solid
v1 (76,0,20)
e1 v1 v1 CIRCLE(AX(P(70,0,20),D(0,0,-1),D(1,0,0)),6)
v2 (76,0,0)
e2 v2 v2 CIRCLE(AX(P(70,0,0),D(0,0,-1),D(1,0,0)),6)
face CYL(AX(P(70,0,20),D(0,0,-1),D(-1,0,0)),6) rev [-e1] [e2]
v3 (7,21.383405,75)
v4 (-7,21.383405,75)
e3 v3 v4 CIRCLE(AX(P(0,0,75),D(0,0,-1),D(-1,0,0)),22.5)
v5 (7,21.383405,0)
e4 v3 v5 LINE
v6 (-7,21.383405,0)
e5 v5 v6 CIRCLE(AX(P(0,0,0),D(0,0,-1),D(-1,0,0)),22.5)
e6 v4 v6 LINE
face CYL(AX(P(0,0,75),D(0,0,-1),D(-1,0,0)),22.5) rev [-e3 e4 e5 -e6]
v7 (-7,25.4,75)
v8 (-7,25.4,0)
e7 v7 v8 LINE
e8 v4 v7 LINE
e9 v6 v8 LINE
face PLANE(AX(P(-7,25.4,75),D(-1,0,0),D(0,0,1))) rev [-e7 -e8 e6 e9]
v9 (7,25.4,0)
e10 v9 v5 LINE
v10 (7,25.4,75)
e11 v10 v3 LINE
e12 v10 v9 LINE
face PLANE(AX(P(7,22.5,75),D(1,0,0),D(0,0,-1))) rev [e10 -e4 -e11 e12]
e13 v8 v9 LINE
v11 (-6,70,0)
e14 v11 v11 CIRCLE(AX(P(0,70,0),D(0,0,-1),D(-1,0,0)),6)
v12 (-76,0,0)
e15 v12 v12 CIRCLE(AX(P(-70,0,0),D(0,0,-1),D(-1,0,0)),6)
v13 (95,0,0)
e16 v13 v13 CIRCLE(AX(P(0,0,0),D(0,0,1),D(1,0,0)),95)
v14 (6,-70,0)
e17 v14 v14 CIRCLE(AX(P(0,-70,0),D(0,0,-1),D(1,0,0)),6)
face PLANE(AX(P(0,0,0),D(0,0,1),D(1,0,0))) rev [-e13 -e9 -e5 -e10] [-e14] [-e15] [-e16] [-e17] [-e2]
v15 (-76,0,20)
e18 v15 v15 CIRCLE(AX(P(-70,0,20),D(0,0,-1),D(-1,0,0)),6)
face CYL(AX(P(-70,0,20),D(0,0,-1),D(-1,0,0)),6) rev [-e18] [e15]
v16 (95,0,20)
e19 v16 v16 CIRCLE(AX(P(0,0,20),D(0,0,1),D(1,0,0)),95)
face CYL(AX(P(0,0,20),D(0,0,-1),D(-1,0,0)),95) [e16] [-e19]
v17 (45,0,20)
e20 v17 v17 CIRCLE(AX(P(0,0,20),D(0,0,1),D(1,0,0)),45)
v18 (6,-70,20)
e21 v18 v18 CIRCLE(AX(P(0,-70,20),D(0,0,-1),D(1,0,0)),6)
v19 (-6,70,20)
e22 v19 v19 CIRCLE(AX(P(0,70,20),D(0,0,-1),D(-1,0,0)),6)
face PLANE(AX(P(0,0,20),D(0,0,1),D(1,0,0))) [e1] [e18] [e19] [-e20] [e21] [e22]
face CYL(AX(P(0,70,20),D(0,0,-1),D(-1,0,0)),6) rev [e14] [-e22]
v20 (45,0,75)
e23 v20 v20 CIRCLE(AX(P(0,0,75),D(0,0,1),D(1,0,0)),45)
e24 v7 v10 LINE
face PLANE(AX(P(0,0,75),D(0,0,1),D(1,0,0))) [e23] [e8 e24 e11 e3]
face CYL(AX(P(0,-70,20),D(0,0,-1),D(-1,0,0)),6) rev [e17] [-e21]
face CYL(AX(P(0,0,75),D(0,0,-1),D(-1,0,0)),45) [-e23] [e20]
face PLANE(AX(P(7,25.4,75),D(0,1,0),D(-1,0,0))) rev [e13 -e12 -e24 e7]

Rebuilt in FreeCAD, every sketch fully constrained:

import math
import FreeCAD as App
import Part
import Sketcher
from FreeCAD import Vector

doc = App.newDocument("Part")
params = doc.addObject("Spreadsheet::Sheet", "Params")
for row, (alias, value) in enumerate([
    ("sketch1_diameter", "190 mm"),
    ("pad1_length", "20 mm"),
    ("sketch2_diameter", "12 mm"),
    ("pocket1_length", "20 mm"),
    ("sketch3_diameter", "90 mm"),
    ("pad2_length", "55 mm"),
    ("sketch4_radius", "22.5 mm"),
    ("sketch4_width", "14 mm"),
    ("pocket2_length", "75 mm"),
], start=1):
    params.set(f"A{row}", alias)
    params.set(f"B{row}", "=" + value)
    params.setAlias(f"B{row}", alias)

body = doc.addObject("PartDesign::Body", "Body")

# Sketch on XY plane
sketch1 = body.newObject("Sketcher::SketchObject", "Sketch")
sketch1.AttachmentSupport = (doc.getObject("XY_Plane"), [""])
sketch1.MapMode = "FlatFace"
sketch1.addGeometry(Part.Circle(Vector(0, 0, 0), Vector(0, 0, 1), 95), False)
sketch1.addConstraint(Sketcher.Constraint("Coincident", 0, 3, -1, 1))
sketch1.addConstraint(Sketcher.Constraint("Diameter", 0, 190.0))
sketch1.setExpression("Constraints[1]", "Params.sketch1_diameter")
pad1 = body.newObject("PartDesign::Pad", "Pad")
pad1.Profile = sketch1
pad1.setExpression("Length", "Params.pad1_length")

# Sketch on XY plane
sketch2 = body.newObject("Sketcher::SketchObject", "Sketch001")
sketch2.AttachmentSupport = (doc.getObject("XY_Plane"), [""])
sketch2.MapMode = "FlatFace"
sketch2.addGeometry(Part.Circle(Vector(0, 70, 0), Vector(0, 0, 1), 6), False)
sketch2.addGeometry(Part.Circle(Vector(-70, 0, 0), Vector(0, 0, 1), 6), False)
sketch2.addGeometry(Part.Circle(Vector(0, -70, 0), Vector(0, 0, 1), 6), False)
sketch2.addGeometry(Part.Circle(Vector(70, 0, 0), Vector(0, 0, 1), 6), False)
sketch2.addConstraint(Sketcher.Constraint("Equal", 0, 1))
sketch2.addConstraint(Sketcher.Constraint("Equal", 1, 2))
sketch2.addConstraint(Sketcher.Constraint("Equal", 2, 3))
sketch2.addConstraint(Sketcher.Constraint("Symmetric", 0, 3, 2, 3, -1, 1))
sketch2.addConstraint(Sketcher.Constraint("Symmetric", 1, 3, 3, 3, -1, 1))
sketch2.addConstraint(Sketcher.Constraint("PointOnObject", 0, 3, -2))
sketch2.addConstraint(Sketcher.Constraint("PointOnObject", 1, 3, -1))
sketch2.addConstraint(Sketcher.Constraint("Diameter", 0, 12.0))
sketch2.addConstraint(Sketcher.Constraint("DistanceY", -1, 1, 0, 3, 70.0))
sketch2.addConstraint(Sketcher.Constraint("DistanceX", 1, 3, -1, 1, 70.0))
sketch2.setExpression("Constraints[7]", "Params.sketch2_diameter")
pocket1 = body.newObject("PartDesign::Pocket", "Pocket")
pocket1.Profile = sketch2
pocket1.setExpression("Length", "Params.pocket1_length")
pocket1.Reversed = True

# Sketch on XY plane
sketch3 = body.newObject("Sketcher::SketchObject", "Sketch002")
sketch3.AttachmentSupport = (doc.getObject("XY_Plane"), [""])
sketch3.MapMode = "FlatFace"
sketch3.AttachmentOffset = App.Placement(Vector(0, 0, 20), App.Rotation())
sketch3.addGeometry(Part.Circle(Vector(0, 0, 0), Vector(0, 0, 1), 45), False)
sketch3.addConstraint(Sketcher.Constraint("Coincident", 0, 3, -1, 1))
sketch3.addConstraint(Sketcher.Constraint("Diameter", 0, 90.0))
sketch3.setExpression("Constraints[1]", "Params.sketch3_diameter")
pad2 = body.newObject("PartDesign::Pad", "Pad001")
pad2.Profile = sketch3
pad2.setExpression("Length", "Params.pad2_length")

# Sketch on XY plane
sketch4 = body.newObject("Sketcher::SketchObject", "Sketch003")
sketch4.AttachmentSupport = (doc.getObject("XY_Plane"), [""])
sketch4.MapMode = "FlatFace"
sketch4.addGeometry(Part.ArcOfCircle(Part.Circle(Vector(0, 0, 0), Vector(0, 0, 1), 22.5), math.radians(108), math.radians(432)), False)
sketch4.addGeometry(Part.LineSegment(Vector(-7, 21.4, 0), Vector(-7, 25.4, 0)), False)
sketch4.addGeometry(Part.LineSegment(Vector(-7, 25.4, 0), Vector(7, 25.4, 0)), False)
sketch4.addGeometry(Part.LineSegment(Vector(7, 25.4, 0), Vector(7, 21.4, 0)), False)
sketch4.addConstraint(Sketcher.Constraint("Coincident", 0, 1, 1, 1))
sketch4.addConstraint(Sketcher.Constraint("Coincident", 1, 2, 2, 1))
sketch4.addConstraint(Sketcher.Constraint("Coincident", 2, 2, 3, 1))
sketch4.addConstraint(Sketcher.Constraint("Coincident", 3, 2, 0, 2))
sketch4.addConstraint(Sketcher.Constraint("Vertical", 1))
sketch4.addConstraint(Sketcher.Constraint("Horizontal", 2))
sketch4.addConstraint(Sketcher.Constraint("Vertical", 3))
sketch4.addConstraint(Sketcher.Constraint("Coincident", 0, 3, -1, 1))
sketch4.addConstraint(Sketcher.Constraint("Horizontal", 0, 1, 3, 2))
sketch4.addConstraint(Sketcher.Constraint("Radius", 0, 22.5))
sketch4.addConstraint(Sketcher.Constraint("DistanceX", 2, 1, 2, 2, 14.0))
sketch4.addConstraint(Sketcher.Constraint("DistanceY", -1, 1, 1, 2, 25.4))
sketch4.setExpression("Constraints[9]", "Params.sketch4_radius")
sketch4.setExpression("Constraints[10]", "Params.sketch4_width")
pocket2 = body.newObject("PartDesign::Pocket", "Pocket001")
pocket2.Profile = sketch4
pocket2.setExpression("Length", "Params.pocket2_length")
pocket2.Reversed = True

doc.recompute()
